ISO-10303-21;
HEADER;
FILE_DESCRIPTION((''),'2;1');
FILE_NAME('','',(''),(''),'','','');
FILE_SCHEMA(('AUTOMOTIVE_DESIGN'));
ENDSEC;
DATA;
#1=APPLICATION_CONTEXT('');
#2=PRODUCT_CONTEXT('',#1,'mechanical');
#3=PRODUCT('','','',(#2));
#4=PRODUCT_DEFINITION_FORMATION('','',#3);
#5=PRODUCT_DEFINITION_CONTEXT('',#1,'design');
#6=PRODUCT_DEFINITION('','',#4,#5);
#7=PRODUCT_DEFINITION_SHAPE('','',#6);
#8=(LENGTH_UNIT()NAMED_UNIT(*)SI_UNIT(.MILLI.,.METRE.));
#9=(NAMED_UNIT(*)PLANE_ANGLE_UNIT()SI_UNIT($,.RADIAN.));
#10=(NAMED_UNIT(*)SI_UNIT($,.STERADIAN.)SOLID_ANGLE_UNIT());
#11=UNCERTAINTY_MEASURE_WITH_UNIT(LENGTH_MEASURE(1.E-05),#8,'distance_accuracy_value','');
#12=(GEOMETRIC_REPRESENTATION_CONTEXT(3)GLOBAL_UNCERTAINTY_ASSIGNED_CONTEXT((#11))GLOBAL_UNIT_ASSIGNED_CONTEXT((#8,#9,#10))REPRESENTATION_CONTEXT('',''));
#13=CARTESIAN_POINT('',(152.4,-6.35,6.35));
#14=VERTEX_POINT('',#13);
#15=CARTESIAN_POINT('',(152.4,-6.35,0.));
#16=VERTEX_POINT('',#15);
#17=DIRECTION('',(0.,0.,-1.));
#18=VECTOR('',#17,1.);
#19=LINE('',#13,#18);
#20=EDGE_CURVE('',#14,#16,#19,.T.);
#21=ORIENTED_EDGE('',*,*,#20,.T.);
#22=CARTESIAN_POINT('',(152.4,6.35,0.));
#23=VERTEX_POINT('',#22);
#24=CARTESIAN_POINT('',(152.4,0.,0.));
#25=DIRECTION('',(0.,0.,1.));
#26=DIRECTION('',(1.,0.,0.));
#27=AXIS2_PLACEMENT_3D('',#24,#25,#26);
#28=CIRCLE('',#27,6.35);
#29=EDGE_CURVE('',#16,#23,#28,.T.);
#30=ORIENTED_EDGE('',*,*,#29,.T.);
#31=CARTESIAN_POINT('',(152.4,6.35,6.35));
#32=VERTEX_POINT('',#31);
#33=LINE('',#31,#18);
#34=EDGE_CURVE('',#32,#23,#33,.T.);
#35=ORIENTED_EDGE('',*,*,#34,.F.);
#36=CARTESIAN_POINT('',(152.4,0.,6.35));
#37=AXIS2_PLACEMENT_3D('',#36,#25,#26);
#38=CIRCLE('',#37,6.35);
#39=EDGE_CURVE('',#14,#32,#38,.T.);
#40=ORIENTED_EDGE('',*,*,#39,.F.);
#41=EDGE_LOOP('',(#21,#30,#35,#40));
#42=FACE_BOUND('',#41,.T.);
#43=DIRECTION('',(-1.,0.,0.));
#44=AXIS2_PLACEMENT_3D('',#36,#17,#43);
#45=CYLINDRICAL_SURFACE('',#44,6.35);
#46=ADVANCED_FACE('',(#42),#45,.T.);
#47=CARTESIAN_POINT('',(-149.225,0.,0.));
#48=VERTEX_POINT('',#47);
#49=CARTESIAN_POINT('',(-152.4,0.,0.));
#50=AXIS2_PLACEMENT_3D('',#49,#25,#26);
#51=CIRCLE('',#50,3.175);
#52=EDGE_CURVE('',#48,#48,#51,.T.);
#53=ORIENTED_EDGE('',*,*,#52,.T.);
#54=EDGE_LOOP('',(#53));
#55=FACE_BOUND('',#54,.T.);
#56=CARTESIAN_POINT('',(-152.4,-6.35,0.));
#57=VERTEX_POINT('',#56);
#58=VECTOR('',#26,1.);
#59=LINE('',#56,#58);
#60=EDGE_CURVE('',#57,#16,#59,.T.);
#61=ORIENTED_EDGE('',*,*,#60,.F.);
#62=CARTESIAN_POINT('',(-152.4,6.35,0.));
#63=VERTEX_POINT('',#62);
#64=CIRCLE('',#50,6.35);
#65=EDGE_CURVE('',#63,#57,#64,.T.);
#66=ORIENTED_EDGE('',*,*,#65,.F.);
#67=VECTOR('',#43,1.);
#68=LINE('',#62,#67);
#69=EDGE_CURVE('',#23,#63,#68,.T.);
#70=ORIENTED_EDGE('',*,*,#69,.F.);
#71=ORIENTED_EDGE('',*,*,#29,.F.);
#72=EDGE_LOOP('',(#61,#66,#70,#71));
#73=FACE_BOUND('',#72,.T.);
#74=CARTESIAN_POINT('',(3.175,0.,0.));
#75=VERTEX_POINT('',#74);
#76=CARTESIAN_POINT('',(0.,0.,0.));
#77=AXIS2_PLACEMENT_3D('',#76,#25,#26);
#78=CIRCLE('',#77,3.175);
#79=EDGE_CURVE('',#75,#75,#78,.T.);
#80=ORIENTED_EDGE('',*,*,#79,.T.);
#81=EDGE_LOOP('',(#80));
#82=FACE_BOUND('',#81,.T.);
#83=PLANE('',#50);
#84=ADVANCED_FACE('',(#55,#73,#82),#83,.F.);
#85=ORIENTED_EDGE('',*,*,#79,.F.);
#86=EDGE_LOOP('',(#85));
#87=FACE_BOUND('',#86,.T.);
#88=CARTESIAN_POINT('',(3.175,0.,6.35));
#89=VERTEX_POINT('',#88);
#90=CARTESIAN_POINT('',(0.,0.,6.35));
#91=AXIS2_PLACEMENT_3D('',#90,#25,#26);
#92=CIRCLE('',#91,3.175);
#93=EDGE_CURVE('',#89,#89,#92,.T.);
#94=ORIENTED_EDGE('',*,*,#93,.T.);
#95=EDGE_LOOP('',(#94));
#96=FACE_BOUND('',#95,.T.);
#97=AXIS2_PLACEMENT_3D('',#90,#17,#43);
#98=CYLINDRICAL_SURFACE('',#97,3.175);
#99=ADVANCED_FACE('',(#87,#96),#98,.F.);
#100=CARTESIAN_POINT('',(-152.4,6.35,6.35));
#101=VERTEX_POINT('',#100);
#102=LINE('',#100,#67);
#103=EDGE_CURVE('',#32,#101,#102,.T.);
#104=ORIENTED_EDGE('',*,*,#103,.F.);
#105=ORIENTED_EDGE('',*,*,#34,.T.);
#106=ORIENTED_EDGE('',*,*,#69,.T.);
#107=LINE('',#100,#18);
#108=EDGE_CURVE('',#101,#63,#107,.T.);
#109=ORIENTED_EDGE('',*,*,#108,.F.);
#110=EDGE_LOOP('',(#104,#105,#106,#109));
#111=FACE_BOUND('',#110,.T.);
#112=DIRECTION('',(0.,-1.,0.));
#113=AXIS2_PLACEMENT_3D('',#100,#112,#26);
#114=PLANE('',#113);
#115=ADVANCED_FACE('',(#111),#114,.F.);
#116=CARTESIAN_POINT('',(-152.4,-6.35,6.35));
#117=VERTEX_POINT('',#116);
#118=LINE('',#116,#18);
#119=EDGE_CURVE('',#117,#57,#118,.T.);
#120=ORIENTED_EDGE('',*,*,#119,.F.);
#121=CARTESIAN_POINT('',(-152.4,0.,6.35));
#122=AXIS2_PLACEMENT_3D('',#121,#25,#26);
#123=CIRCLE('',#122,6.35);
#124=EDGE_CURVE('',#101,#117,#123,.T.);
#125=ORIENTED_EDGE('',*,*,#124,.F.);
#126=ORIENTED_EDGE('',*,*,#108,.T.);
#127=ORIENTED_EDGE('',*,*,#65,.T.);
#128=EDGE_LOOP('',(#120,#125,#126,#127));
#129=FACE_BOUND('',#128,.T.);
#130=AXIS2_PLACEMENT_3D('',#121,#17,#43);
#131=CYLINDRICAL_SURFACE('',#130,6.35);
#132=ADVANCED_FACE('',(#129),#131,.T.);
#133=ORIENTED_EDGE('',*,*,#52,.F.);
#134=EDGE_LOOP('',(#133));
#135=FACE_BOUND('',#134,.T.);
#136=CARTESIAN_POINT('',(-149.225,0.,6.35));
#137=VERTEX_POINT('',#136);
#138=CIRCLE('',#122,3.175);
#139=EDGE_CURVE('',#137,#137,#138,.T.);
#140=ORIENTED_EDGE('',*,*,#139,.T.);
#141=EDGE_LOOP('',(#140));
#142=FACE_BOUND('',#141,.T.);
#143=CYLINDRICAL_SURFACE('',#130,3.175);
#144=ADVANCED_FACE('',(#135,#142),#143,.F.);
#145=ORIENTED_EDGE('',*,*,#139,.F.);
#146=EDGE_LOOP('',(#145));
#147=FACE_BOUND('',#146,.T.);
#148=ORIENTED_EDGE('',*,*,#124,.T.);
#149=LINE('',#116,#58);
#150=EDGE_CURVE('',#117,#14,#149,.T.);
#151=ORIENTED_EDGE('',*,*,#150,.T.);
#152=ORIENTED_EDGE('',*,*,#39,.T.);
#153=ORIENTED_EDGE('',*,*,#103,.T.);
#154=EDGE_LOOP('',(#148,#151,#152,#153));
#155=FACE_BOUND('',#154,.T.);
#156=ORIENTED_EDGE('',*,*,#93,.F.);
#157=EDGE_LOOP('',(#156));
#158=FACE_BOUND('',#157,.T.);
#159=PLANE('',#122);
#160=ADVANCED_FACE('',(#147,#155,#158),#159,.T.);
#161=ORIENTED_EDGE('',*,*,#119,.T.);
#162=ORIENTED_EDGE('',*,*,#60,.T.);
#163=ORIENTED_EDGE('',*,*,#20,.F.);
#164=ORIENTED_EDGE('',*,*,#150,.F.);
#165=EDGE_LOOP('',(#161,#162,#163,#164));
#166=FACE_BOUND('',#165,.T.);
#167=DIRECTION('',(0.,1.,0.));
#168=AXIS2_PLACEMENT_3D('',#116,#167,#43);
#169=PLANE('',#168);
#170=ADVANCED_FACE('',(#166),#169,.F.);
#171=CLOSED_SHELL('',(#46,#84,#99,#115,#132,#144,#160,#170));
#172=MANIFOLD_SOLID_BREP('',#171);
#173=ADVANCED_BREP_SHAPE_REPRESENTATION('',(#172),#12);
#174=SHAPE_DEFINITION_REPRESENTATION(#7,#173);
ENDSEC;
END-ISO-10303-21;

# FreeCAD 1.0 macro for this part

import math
import FreeCAD as App
import Part
import Sketcher
from FreeCAD import Vector
Q = App.Units.Quantity

doc = App.newDocument("Part")
body = doc.addObject("PartDesign::Body", "Body")

# Sketch on XY plane
sketch1 = body.newObject("Sketcher::SketchObject", "Sketch")
sketch1.AttachmentSupport = (doc.getObject("XY_Plane"), [""])
sketch1.MapMode = "FlatFace"
sketch1.addGeometry(Part.LineSegment(Vector(152.4, 6.3, 0), Vector(-152.4, 6.3, 0)), False)
sketch1.addGeometry(Part.ArcOfCircle(Part.Circle(Vector(-152.4, 0, 0), Vector(0, 0, 1), 6.3), math.radians(90), math.radians(270)), False)
sketch1.addGeometry(Part.LineSegment(Vector(-152.4, -6.3, 0), Vector(152.4, -6.3, 0)), False)
sketch1.addGeometry(Part.ArcOfCircle(Part.Circle(Vector(152.4, 0, 0), Vector(0, 0, 1), 6.3), math.radians(-90), math.radians(90)), False)
sketch1.addGeometry(Part.Circle(Vector(0, 0, 0), Vector(0, 0, 1), 3.2), False)
sketch1.addGeometry(Part.Circle(Vector(-152.4, 0, 0), Vector(0, 0, 1), 3.2), False)
sketch1.addConstraint(Sketcher.Constraint("Tangent", 0, 2, 1, 1))
sketch1.addConstraint(Sketcher.Constraint("Tangent", 1, 2, 2, 1))
sketch1.addConstraint(Sketcher.Constraint("Tangent", 2, 2, 3, 1))
sketch1.addConstraint(Sketcher.Constraint("Tangent", 3, 2, 0, 1))
sketch1.addConstraint(Sketcher.Constraint("Horizontal", 0))
sketch1.addConstraint(Sketcher.Constraint("Horizontal", 2))
sketch1.addConstraint(Sketcher.Constraint("Coincident", 4, 3, -1, 1))
sketch1.addConstraint(Sketcher.Constraint("Coincident", 5, 3, 1, 3))
sketch1.addConstraint(Sketcher.Constraint("Equal", 4, 5))
sketch1.addConstraint(Sketcher.Constraint("Symmetric", 1, 3, 3, 3, -1, 1))
sketch1.addConstraint(Sketcher.Constraint("Diameter", 4, Q("0.25 in")))
sketch1.addConstraint(Sketcher.Constraint("DistanceX", 0, 2, 0, 1, Q("12 in")))
sketch1.addConstraint(Sketcher.Constraint("Radius", 1, Q("0.25 in")))
pad1 = body.newObject("PartDesign::Pad", "Pad")
pad1.Profile = sketch1
pad1.Length = Q("0.25 in")

doc.recompute()
